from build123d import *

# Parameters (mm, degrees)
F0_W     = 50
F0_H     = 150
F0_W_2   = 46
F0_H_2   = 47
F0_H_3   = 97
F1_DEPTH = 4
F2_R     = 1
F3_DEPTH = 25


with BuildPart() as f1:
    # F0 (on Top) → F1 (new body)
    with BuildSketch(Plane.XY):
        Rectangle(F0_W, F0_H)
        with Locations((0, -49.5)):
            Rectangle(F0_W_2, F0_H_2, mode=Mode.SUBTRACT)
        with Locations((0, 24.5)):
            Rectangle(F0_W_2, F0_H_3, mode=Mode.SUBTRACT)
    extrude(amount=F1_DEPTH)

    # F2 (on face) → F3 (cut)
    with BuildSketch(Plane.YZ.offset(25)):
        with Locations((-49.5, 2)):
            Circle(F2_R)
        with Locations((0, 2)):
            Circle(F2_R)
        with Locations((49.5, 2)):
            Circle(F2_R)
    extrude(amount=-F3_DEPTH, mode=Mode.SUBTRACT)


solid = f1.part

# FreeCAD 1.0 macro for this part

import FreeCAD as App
import Part
import Sketcher

V = App.Vector
Q = App.Units.Quantity

doc = App.newDocument("Part")
body = doc.addObject("PartDesign::Body", "Body")

# Sketch on XY plane
sketch1 = body.newObject("Sketcher::SketchObject", "Sketch")
sketch1.AttachmentSupport = (doc.getObject("XY_Plane"), [""])
sketch1.MapMode = "FlatFace"
sketch1.addGeometry([
    Part.LineSegment(V(-25, 75, 0), V(-25, -75, 0)),  # 0
    Part.LineSegment(V(-25, -75, 0), V(25, -75, 0)),  # 1
    Part.LineSegment(V(25, -75, 0), V(25, 75, 0)),  # 2
    Part.LineSegment(V(25, 75, 0), V(-25, 75, 0)),  # 3
    Part.LineSegment(V(23, -73, 0), V(-23, -73, 0)),  # 4
    Part.LineSegment(V(-23, -73, 0), V(-23, -26, 0)),  # 5
    Part.LineSegment(V(-23, -26, 0), V(23, -26, 0)),  # 6
    Part.LineSegment(V(23, -26, 0), V(23, -73, 0)),  # 7
    Part.LineSegment(V(23, -24, 0), V(-23, -24, 0)),  # 8
    Part.LineSegment(V(-23, -24, 0), V(-23, 73, 0)),  # 9
    Part.LineSegment(V(-23, 73, 0), V(23, 73, 0)),  # 10
    Part.LineSegment(V(23, 73, 0), V(23, -24, 0)),  # 11
], False)
sketch1.addConstraint([
    Sketcher.Constraint("Coincident", 0, 2, 1, 1),
    Sketcher.Constraint("Coincident", 1, 2, 2, 1),
    Sketcher.Constraint("Coincident", 2, 2, 3, 1),
    Sketcher.Constraint("Coincident", 3, 2, 0, 1),
    Sketcher.Constraint("Coincident", 4, 2, 5, 1),
    Sketcher.Constraint("Coincident", 5, 2, 6, 1),
    Sketcher.Constraint("Coincident", 6, 2, 7, 1),
    Sketcher.Constraint("Coincident", 7, 2, 4, 1),
    Sketcher.Constraint("Coincident", 8, 2, 9, 1),
    Sketcher.Constraint("Coincident", 9, 2, 10, 1),
    Sketcher.Constraint("Coincident", 10, 2, 11, 1),
    Sketcher.Constraint("Coincident", 11, 2, 8, 1),
    Sketcher.Constraint("Vertical", 0),
    Sketcher.Constraint("Horizontal", 1),
    Sketcher.Constraint("Vertical", 2),
    Sketcher.Constraint("Horizontal", 3),
    Sketcher.Constraint("Horizontal", 4),
    Sketcher.Constraint("Vertical", 5),
    Sketcher.Constraint("Horizontal", 6),
    Sketcher.Constraint("Vertical", 7),
    Sketcher.Constraint("Horizontal", 8),
    Sketcher.Constraint("Vertical", 9),
    Sketcher.Constraint("Horizontal", 10),
    Sketcher.Constraint("Vertical", 11),
    Sketcher.Constraint("Symmetric", 0, 2, 2, 2, -1, 1),
    Sketcher.Constraint("Symmetric", 7, 2, 9, 2, -1, 1),
    Sketcher.Constraint("Vertical", 5, 2, 8, 2),
    Sketcher.Constraint("Vertical", 7, 2, 10, 2),
    Sketcher.Constraint("DistanceX", 1, 1, 1, 2, Q("50 mm")),
    Sketcher.Constraint("DistanceX", 4, 2, 4, 1, Q("46 mm")),
    Sketcher.Constraint("DistanceY", 0, 2, 0, 1, Q("150 mm")),
    Sketcher.Constraint("DistanceY", 5, 1, 5, 2, Q("47 mm")),
    Sketcher.Constraint("DistanceY", 9, 1, 9, 2, Q("97 mm")),
    Sketcher.Constraint("DistanceY", 4, 2, -1, 1, Q("73 mm")),
])
pad1 = body.newObject("PartDesign::Pad", "Pad")
pad1.Profile = sketch1
pad1.Length = 4

# Sketch on YZ plane
sketch2 = body.newObject("Sketcher::SketchObject", "Sketch001")
sketch2.AttachmentSupport = (doc.getObject("YZ_Plane"), [""])
sketch2.MapMode = "FlatFace"
sketch2.AttachmentOffset = App.Placement(V(0, 0, 25), App.Rotation())
sketch2.addGeometry([
    Part.Circle(V(-49.5, 2, 0), V(0, 0, 1), 1),
    Part.Circle(V(0, 2, 0), V(0, 0, 1), 1),
    Part.Circle(V(49.5, 2, 0), V(0, 0, 1), 1),
], False)
sketch2.addConstraint([
    Sketcher.Constraint("Equal", 0, 1),
    Sketcher.Constraint("Equal", 1, 2),
    Sketcher.Constraint("Symmetric", 0, 3, 2, 3, -2),
    Sketcher.Constraint("PointOnObject", 1, 3, -2),
    Sketcher.Constraint("Horizontal", 0, 3, 1, 3),
    Sketcher.Constraint("Diameter", 0, Q("2 mm")),
    Sketcher.Constraint("DistanceY", -1, 1, 0, 3, Q("2 mm")),
    Sketcher.Constraint("DistanceX", 0, 3, 2, 3, Q("99 mm")),
])
pocket1 = body.newObject("PartDesign::Pocket", "Pocket")
pocket1.Profile = sketch2
pocket1.Length = 25

doc.recompute()
